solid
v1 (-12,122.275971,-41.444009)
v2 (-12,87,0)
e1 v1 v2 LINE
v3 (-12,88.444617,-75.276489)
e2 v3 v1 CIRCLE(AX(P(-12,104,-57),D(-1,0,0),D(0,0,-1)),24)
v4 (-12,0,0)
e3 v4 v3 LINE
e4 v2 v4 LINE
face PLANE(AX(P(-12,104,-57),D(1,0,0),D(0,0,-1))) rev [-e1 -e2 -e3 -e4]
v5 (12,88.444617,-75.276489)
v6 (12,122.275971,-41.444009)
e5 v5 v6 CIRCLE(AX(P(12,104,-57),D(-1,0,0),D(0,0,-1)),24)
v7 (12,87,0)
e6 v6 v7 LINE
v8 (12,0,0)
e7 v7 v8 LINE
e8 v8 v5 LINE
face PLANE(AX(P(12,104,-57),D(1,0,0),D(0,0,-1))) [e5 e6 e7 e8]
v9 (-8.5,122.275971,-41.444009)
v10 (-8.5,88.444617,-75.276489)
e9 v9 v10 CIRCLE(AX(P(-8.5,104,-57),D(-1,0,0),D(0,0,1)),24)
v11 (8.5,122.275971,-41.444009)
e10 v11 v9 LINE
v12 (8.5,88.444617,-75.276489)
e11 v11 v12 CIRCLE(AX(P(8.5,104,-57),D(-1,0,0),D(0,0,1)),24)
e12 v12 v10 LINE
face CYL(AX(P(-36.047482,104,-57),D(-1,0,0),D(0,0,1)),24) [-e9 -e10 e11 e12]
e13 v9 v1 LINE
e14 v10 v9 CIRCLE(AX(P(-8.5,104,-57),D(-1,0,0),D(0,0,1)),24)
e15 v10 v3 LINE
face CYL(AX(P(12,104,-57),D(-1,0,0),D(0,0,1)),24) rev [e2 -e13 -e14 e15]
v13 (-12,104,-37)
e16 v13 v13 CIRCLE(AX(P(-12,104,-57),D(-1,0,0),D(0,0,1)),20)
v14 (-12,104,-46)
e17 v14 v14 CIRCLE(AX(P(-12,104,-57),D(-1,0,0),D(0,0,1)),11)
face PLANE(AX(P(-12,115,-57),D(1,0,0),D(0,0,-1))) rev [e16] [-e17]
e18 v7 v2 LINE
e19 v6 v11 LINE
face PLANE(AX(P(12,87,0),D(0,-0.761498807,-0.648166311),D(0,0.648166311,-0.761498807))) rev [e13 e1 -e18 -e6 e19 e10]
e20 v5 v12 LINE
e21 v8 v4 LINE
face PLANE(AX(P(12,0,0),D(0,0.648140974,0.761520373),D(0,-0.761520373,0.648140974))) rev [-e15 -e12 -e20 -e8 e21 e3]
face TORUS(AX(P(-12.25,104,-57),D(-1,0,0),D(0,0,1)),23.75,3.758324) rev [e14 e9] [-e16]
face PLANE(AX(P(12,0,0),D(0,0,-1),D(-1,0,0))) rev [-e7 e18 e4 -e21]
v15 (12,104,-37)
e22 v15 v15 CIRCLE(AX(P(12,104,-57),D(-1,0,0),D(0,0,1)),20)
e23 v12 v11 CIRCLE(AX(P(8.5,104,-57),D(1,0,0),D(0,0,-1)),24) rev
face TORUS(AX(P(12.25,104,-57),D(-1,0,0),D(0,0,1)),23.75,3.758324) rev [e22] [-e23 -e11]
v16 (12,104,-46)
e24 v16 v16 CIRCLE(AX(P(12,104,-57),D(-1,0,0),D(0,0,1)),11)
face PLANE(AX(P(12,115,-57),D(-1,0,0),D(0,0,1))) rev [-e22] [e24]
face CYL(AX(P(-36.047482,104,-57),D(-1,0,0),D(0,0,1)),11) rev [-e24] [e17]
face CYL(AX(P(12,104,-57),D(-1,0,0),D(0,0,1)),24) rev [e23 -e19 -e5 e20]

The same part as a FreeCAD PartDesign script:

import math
import FreeCAD as App
import Part
import Sketcher

V = App.Vector
Q = App.Units.Quantity

doc = App.newDocument("Part")
body = doc.addObject("PartDesign::Body", "Body")

sketch1 = body.newObject("Sketcher::SketchObject", "Sketch")
sketch1.AttachmentSupport = (doc.getObject("XY_Plane"), [""])
sketch1.MapMode = "FlatFace"
sketch1.AttachmentOffset = App.Placement(V(0, 0, -57), App.Rotation())
sketch1.addGeometry([
    Part.LineSegment(V(-12, 115, 0), V(12, 115, 0)),
    Part.LineSegment(V(12, 115, 0), V(12, 124, 0)),
    Part.ArcOfCircle(Part.Circle(V(12.2, 127.8, 0), V(0, 0, 1), 3.8), math.radians(176), math.radians(266)),
    Part.LineSegment(V(8.5, 128, 0), V(-8.5, 128, 0)),
    Part.ArcOfCircle(Part.Circle(V(-12.2, 127.8, 0), V(0, 0, 1), 3.8), math.radians(-86), math.radians(4)),
    Part.LineSegment(V(-12, 124, 0), V(-12, 115, 0)),
], False)
sketch1.addGeometry(Part.LineSegment(V(-12.2, 104, 0), V(12.2, 104, 0)), True)
sketch1.addConstraint([
    Sketcher.Constraint("Coincident", 0, 2, 1, 1),
    Sketcher.Constraint("Coincident", 1, 2, 2, 2),
    Sketcher.Constraint("Coincident", 2, 1, 3, 1),
    Sketcher.Constraint("Coincident", 3, 2, 4, 2),
    Sketcher.Constraint("Coincident", 4, 1, 5, 1),
    Sketcher.Constraint("Coincident", 5, 2, 0, 1),
    Sketcher.Constraint("Horizontal", 0),
    Sketcher.Constraint("Vertical", 1),
    Sketcher.Constraint("Horizontal", 3),
    Sketcher.Constraint("Vertical", 5),
    Sketcher.Constraint("Horizontal", 6),
    Sketcher.Constraint("Equal", 2, 4),
    Sketcher.Constraint("Symmetric", 2, 3, 4, 3, -2),
    Sketcher.Constraint("Horizontal", 1, 2, 4, 1),
    Sketcher.Constraint("Vertical", 4, 3, 6, 1),
    Sketcher.Constraint("Vertical", 2, 3, 6, 2),
    Sketcher.Constraint("DistanceX", 0, 1, 0, 2, Q("24 mm")),
    Sketcher.Constraint("DistanceX", 3, 2, 3, 1, Q("17 mm")),
    Sketcher.Constraint("DistanceY", 1, 1, 1, 2, Q("9 mm")),
    Sketcher.Constraint("DistanceX", 6, 1, 6, 2, Q("24.5 mm")),
    Sketcher.Constraint("DistanceY", -1, 1, 0, 2, Q("115 mm")),
    Sketcher.Constraint("DistanceY", -1, 1, 2, 1, Q("128 mm")),
    Sketcher.Constraint("DistanceY", -1, 1, 6, 1, Q("104 mm")),
])
revolution = body.newObject("PartDesign::Revolution", "Revolution")
revolution.Profile = sketch1
revolution.ReferenceAxis = (sketch1, ["Axis0"])
revolution.Angle = 360

sketch2 = body.newObject("Sketcher::SketchObject", "Sketch001")
sketch2.AttachmentSupport = (doc.getObject("YZ_Plane"), [""])
sketch2.MapMode = "FlatFace"
sketch2.addGeometry([
    Part.LineSegment(V(87, 0, 0), V(0, 0, 0)),
    Part.LineSegment(V(0, 0, 0), V(88, -75, 0)),
    Part.ArcOfCircle(Part.Circle(V(104, -57, 0), V(0, 0, 1), 24), math.radians(40), math.radians(230)),
    Part.LineSegment(V(122, -41, 0), V(87, 0, 0)),
], False)
sketch2.addConstraint([
    Sketcher.Constraint("Coincident", 0, 2, 1, 1),
    Sketcher.Constraint("Tangent", 1, 2, 2, 2),
    Sketcher.Constraint("Tangent", 2, 1, 3, 1),
    Sketcher.Constraint("Coincident", 3, 2, 0, 1),
    Sketcher.Constraint("Horizontal", 0),
    Sketcher.Constraint("Coincident", 0, 2, -1, 1),
    Sketcher.Constraint("Radius", 2, Q("24 mm")),
    Sketcher.Constraint("DistanceX", 0, 2, 0, 1, Q("87 mm")),
    Sketcher.Constraint("DistanceX", -1, 1, 2, 3, Q("104 mm")),
    Sketcher.Constraint("DistanceY", 2, 3, -1, 1, Q("57 mm")),
])
pad1 = body.newObject("PartDesign::Pad", "Pad")
pad1.Profile = sketch2
pad1.Length = 24
pad1.Midplane = True

doc.recompute()
